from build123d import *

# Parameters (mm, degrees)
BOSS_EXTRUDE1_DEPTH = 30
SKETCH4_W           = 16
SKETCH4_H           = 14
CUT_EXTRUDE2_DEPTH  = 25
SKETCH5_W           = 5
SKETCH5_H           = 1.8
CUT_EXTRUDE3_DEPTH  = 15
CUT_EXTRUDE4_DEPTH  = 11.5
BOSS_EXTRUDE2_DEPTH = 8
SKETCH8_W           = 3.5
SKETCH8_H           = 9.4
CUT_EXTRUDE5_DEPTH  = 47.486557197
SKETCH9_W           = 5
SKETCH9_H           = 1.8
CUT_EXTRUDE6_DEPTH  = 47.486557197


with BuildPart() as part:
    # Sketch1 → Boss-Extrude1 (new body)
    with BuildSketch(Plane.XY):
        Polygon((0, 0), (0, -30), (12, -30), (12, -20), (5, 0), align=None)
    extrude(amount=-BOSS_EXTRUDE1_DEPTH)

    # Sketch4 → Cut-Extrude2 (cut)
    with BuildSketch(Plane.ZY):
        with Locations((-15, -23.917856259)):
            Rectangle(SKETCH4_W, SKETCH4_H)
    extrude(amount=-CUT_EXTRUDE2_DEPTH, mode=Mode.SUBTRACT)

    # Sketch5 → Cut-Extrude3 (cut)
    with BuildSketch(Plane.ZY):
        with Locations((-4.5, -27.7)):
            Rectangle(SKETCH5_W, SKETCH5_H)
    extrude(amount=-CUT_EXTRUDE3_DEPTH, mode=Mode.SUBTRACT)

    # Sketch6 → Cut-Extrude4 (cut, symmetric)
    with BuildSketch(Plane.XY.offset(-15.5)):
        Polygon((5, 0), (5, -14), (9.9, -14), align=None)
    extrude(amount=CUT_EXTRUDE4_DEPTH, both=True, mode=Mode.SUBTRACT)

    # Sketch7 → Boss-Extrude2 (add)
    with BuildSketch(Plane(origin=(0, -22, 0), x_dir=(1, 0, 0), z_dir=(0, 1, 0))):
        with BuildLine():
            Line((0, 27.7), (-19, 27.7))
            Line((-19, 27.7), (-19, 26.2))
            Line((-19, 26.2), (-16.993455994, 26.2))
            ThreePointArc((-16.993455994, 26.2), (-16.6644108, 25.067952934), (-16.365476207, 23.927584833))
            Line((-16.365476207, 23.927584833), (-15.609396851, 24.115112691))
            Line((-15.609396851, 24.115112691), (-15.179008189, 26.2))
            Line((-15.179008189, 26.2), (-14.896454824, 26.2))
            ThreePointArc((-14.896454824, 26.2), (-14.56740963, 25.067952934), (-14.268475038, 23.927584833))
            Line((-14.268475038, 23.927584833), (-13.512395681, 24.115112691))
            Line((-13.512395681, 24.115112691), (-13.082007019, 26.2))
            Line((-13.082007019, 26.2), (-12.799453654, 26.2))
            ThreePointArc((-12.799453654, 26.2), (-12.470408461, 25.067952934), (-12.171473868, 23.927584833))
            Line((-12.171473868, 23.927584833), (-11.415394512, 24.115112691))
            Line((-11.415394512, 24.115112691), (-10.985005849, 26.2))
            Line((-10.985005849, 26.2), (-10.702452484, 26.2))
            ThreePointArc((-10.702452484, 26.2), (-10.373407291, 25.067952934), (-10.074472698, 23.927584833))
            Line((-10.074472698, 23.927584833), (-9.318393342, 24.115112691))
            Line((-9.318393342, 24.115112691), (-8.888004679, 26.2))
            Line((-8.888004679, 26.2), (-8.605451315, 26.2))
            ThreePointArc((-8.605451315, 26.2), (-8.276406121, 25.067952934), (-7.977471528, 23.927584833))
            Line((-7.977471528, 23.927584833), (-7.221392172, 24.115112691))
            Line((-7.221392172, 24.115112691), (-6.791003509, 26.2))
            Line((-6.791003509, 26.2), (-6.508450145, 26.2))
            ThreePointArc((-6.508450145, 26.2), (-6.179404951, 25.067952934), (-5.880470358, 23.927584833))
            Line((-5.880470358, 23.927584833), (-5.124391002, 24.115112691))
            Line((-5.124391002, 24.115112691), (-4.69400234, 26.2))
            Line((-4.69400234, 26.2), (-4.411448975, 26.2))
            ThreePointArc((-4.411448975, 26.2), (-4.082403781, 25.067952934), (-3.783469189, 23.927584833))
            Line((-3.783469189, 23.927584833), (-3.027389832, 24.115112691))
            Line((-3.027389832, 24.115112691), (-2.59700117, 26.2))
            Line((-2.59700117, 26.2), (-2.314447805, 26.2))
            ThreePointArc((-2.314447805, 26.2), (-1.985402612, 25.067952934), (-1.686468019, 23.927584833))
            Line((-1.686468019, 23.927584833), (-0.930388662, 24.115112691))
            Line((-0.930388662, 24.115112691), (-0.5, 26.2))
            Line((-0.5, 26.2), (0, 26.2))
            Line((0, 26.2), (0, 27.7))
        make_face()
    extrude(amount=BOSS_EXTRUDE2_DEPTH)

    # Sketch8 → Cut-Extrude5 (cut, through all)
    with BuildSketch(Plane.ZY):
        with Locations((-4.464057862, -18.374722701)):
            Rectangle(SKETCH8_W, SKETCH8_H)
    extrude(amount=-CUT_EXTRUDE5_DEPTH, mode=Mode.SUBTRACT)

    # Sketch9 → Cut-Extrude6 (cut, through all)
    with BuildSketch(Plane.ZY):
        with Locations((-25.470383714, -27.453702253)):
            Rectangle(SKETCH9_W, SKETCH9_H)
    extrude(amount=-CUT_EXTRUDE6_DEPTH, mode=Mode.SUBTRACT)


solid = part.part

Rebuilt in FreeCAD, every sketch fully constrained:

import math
import FreeCAD as App
import Part
import Sketcher
from FreeCAD import Vector
Q = App.Units.Quantity

doc = App.newDocument("Part")
params = doc.addObject("Spreadsheet::Sheet", "Params")
for row, (alias, value) in enumerate([
    ("sketch1_width", "12 mm"),
    ("sketch1_width2", "5 mm"),
    ("sketch1_height", "30 mm"),
    ("sketch1_height2", "10 mm"),
    ("pad1_length", "30 mm"),
    ("sketch2_width", "14 mm"),
    ("sketch2_height", "16 mm"),
    ("pocket1_length", "25 mm"),
    ("sketch3_height", "5 mm"),
    ("sketch3_width", "1.8 mm"),
    ("pocket2_length", "15 mm"),
    ("sketch4_height", "14 mm"),
    ("sketch4_width", "4.9 mm"),
    ("pocket3_length", "23 mm"),
    ("sketch5_width", "19 mm"),
    ("sketch5_width2", "0.5 mm"),
    ("sketch5_height", "1.5 mm"),
    ("pad2_length", "8 mm"),
    ("sketch6_width", "9.4 mm"),
    ("sketch6_height", "3.5 mm"),
    ("sketch7_height", "5 mm"),
    ("sketch7_width", "1.8 mm"),
], start=1):
    params.set(f"A{row}", alias)
    params.set(f"B{row}", "=" + value)
    params.setAlias(f"B{row}", alias)

body = doc.addObject("PartDesign::Body", "Body")

sketch1 = body.newObject("Sketcher::SketchObject", "Sketch")
sketch1.AttachmentSupport = (doc.getObject("XY_Plane"), [""])
sketch1.MapMode = "FlatFace"
sketch1.addGeometry([
    Part.LineSegment(Vector(0, 0, 0), Vector(0, -30, 0)),
    Part.LineSegment(Vector(0, -30, 0), Vector(12, -30, 0)),
    Part.LineSegment(Vector(12, -30, 0), Vector(12, -20, 0)),
    Part.LineSegment(Vector(12, -20, 0), Vector(5, 0, 0)),
    Part.LineSegment(Vector(5, 0, 0), Vector(0, 0, 0)),
], False)
sketch1.addConstraint([
    Sketcher.Constraint("Coincident", 0, 2, 1, 1),
    Sketcher.Constraint("Coincident", 1, 2, 2, 1),
    Sketcher.Constraint("Coincident", 2, 2, 3, 1),
    Sketcher.Constraint("Coincident", 3, 2, 4, 1),
    Sketcher.Constraint("Coincident", 4, 2, 0, 1),
    Sketcher.Constraint("Vertical", 0),
    Sketcher.Constraint("Horizontal", 1),
    Sketcher.Constraint("Vertical", 2),
    Sketcher.Constraint("Horizontal", 4),
    Sketcher.Constraint("Coincident", 4, 2, -1, 1),
    Sketcher.Constraint("DistanceX", 1, 1, 1, 2, Q("12 mm")),
    Sketcher.Constraint("DistanceX", 4, 2, 4, 1, Q("5 mm")),
    Sketcher.Constraint("DistanceY", 0, 2, 0, 1, Q("30 mm")),
    Sketcher.Constraint("DistanceY", 2, 1, 2, 2, Q("10 mm")),
])
sketch1.setExpression("Constraints[10]", "Params.sketch1_width")
sketch1.setExpression("Constraints[11]", "Params.sketch1_width2")
sketch1.setExpression("Constraints[12]", "Params.sketch1_height")
sketch1.setExpression("Constraints[13]", "Params.sketch1_height2")
pad1 = body.newObject("PartDesign::Pad", "Pad")
pad1.Profile = sketch1
pad1.setExpression("Length", "Params.pad1_length")
pad1.Reversed = True

sketch2 = body.newObject("Sketcher::SketchObject", "Sketch001")
sketch2.AttachmentSupport = (doc.getObject("YZ_Plane"), [""])
sketch2.MapMode = "FlatFace"
sketch2.addGeometry([
    Part.LineSegment(Vector(-16.917856, -23, 0), Vector(-30.917856, -23, 0)),
    Part.LineSegment(Vector(-30.917856, -23, 0), Vector(-30.917856, -7, 0)),
    Part.LineSegment(Vector(-30.917856, -7, 0), Vector(-16.917856, -7, 0)),
    Part.LineSegment(Vector(-16.917856, -7, 0), Vector(-16.917856, -23, 0)),
], False)
sketch2.addConstraint([
    Sketcher.Constraint("Coincident", 0, 2, 1, 1),
    Sketcher.Constraint("Coincident", 1, 2, 2, 1),
    Sketcher.Constraint("Coincident", 2, 2, 3, 1),
    Sketcher.Constraint("Coincident", 3, 2, 0, 1),
    Sketcher.Constraint("Horizontal", 0),
    Sketcher.Constraint("Vertical", 1),
    Sketcher.Constraint("Horizontal", 2),
    Sketcher.Constraint("Vertical", 3),
    Sketcher.Constraint("DistanceX", 0, 2, 0, 1, Q("14 mm")),
    Sketcher.Constraint("DistanceY", 1, 1, 1, 2, Q("16 mm")),
    Sketcher.Constraint("DistanceY", 0, 2, -1, 1, Q("23 mm")),
    Sketcher.Constraint("DistanceX", 0, 2, -1, 1, Q("30.917856 mm")),
])
sketch2.setExpression("Constraints[8]", "Params.sketch2_width")
sketch2.setExpression("Constraints[9]", "Params.sketch2_height")
pocket1 = body.newObject("PartDesign::Pocket", "Pocket")
pocket1.Profile = sketch2
pocket1.setExpression("Length", "Params.pocket1_length")
pocket1.Reversed = True

sketch3 = body.newObject("Sketcher::SketchObject", "Sketch002")
sketch3.AttachmentSupport = (doc.getObject("YZ_Plane"), [""])
sketch3.MapMode = "FlatFace"
sketch3.addGeometry([
    Part.LineSegment(Vector(-26.8, -7, 0), Vector(-28.6, -7, 0)),
    Part.LineSegment(Vector(-28.6, -7, 0), Vector(-28.6, -2, 0)),
    Part.LineSegment(Vector(-28.6, -2, 0), Vector(-26.8, -2, 0)),
    Part.LineSegment(Vector(-26.8, -2, 0), Vector(-26.8, -7, 0)),
], False)
sketch3.addConstraint([
    Sketcher.Constraint("Coincident", 0, 2, 1, 1),
    Sketcher.Constraint("Coincident", 1, 2, 2, 1),
    Sketcher.Constraint("Coincident", 2, 2, 3, 1),
    Sketcher.Constraint("Coincident", 3, 2, 0, 1),
    Sketcher.Constraint("Horizontal", 0),
    Sketcher.Constraint("Vertical", 1),
    Sketcher.Constraint("Horizontal", 2),
    Sketcher.Constraint("Vertical", 3),
    Sketcher.Constraint("DistanceY", 1, 1, 1, 2, Q("5 mm")),
    Sketcher.Constraint("DistanceX", 0, 2, 0, 1, Q("1.8 mm")),
    Sketcher.Constraint("DistanceY", 0, 2, -1, 1, Q("7 mm")),
    Sketcher.Constraint("DistanceX", 0, 2, -1, 1, Q("28.6 mm")),
])
sketch3.setExpression("Constraints[8]", "Params.sketch3_height")
sketch3.setExpression("Constraints[9]", "Params.sketch3_width")
pocket2 = body.newObject("PartDesign::Pocket", "Pocket001")
pocket2.Profile = sketch3
pocket2.setExpression("Length", "Params.pocket2_length")
pocket2.Reversed = True

sketch4 = body.newObject("Sketcher::SketchObject", "Sketch003")
sketch4.AttachmentSupport = (doc.getObject("XY_Plane"), [""])
sketch4.MapMode = "FlatFace"
sketch4.AttachmentOffset = App.Placement(Vector(0, 0, -15.5), App.Rotation())
sketch4.addGeometry([
    Part.LineSegment(Vector(5, 0, 0), Vector(5, -14, 0)),
    Part.LineSegment(Vector(5, -14, 0), Vector(9.9, -14, 0)),
    Part.LineSegment(Vector(9.9, -14, 0), Vector(5, 0, 0)),
], False)
sketch4.addConstraint([
    Sketcher.Constraint("Coincident", 0, 2, 1, 1),
    Sketcher.Constraint("Coincident", 1, 2, 2, 1),
    Sketcher.Constraint("Coincident", 2, 2, 0, 1),
    Sketcher.Constraint("Vertical", 0),
    Sketcher.Constraint("Horizontal", 1),
    Sketcher.Constraint("PointOnObject", 2, 2, -1),
    Sketcher.Constraint("DistanceY", 0, 2, 0, 1, Q("14 mm")),
    Sketcher.Constraint("DistanceX", 1, 1, 1, 2, Q("4.9 mm")),
    Sketcher.Constraint("DistanceX", -1, 1, 0, 2, Q("5 mm")),
])
sketch4.setExpression("Constraints[6]", "Params.sketch4_height")
sketch4.setExpression("Constraints[7]", "Params.sketch4_width")
pocket3 = body.newObject("PartDesign::Pocket", "Pocket002")
pocket3.Profile = sketch4
pocket3.setExpression("Length", "Params.pocket3_length")
pocket3.Midplane = True

sketch5 = body.newObject("Sketcher::SketchObject", "Sketch004")
sketch5.AttachmentSupport = (doc.getObject("XZ_Plane"), [""])
sketch5.MapMode = "FlatFace"
sketch5.AttachmentOffset = App.Placement(Vector(0, 0, 22), App.Rotation())
sketch5.addGeometry([
    Part.LineSegment(Vector(0, -27.7, 0), Vector(-19, -27.7, 0)),
    Part.LineSegment(Vector(-19, -27.7, 0), Vector(-19, -26.2, 0)),
    Part.LineSegment(Vector(-19, -26.2, 0), Vector(-16.993456, -26.2, 0)),
    Part.ArcOfCircle(Part.Circle(Vector(-59.54613, -13.21763, 0), Vector(0, 0, 1), 44.48901), math.radians(-16.966392), math.radians(-13.929782)),
    Part.LineSegment(Vector(-16.365476, -23.927585, 0), Vector(-15.609397, -24.115113, 0)),
    Part.LineSegment(Vector(-15.609397, -24.115113, 0), Vector(-15.179008, -26.2, 0)),
    Part.LineSegment(Vector(-15.179008, -26.2, 0), Vector(-14.896455, -26.2, 0)),
    Part.ArcOfCircle(Part.Circle(Vector(-57.449128, -13.217631, 0), Vector(0, 0, 1), 44.489009), math.radians(-16.966392), math.radians(-13.929782)),
    Part.LineSegment(Vector(-14.268475, -23.927585, 0), Vector(-13.512396, -24.115113, 0)),
    Part.LineSegment(Vector(-13.512396, -24.115113, 0), Vector(-13.082007, -26.2, 0)),
    Part.LineSegment(Vector(-13.082007, -26.2, 0), Vector(-12.799454, -26.2, 0)),
    Part.ArcOfCircle(Part.Circle(Vector(-55.352129, -13.21763, 0), Vector(0, 0, 1), 44.489011), math.radians(-16.966392), math.radians(-13.929782)),
    Part.LineSegment(Vector(-12.171474, -23.927585, 0), Vector(-11.415395, -24.115113, 0)),
    Part.LineSegment(Vector(-11.415395, -24.115113, 0), Vector(-10.985006, -26.2, 0)),
    Part.LineSegment(Vector(-10.985006, -26.2, 0), Vector(-10.702452, -26.2, 0)),
    Part.ArcOfCircle(Part.Circle(Vector(-53.255128, -13.21763, 0), Vector(0, 0, 1), 44.489011), math.radians(-16.966392), math.radians(-13.929782)),
    Part.LineSegment(Vector(-10.074473, -23.927585, 0), Vector(-9.318393, -24.115113, 0)),
    Part.LineSegment(Vector(-9.318393, -24.115113, 0), Vector(-8.888005, -26.2, 0)),
    Part.LineSegment(Vector(-8.888005, -26.2, 0), Vector(-8.605451, -26.2, 0)),
    Part.ArcOfCircle(Part.Circle(Vector(-51.158126, -13.21763, 0), Vector(0, 0, 1), 44.48901), math.radians(-16.966392), math.radians(-13.929782)),
    Part.LineSegment(Vector(-7.977472, -23.927585, 0), Vector(-7.221392, -24.115113, 0)),
    Part.LineSegment(Vector(-7.221392, -24.115113, 0), Vector(-6.791004, -26.2, 0)),
    Part.LineSegment(Vector(-6.791004, -26.2, 0), Vector(-6.50845, -26.2, 0)),
    Part.ArcOfCircle(Part.Circle(Vector(-49.061125, -13.21763, 0), Vector(0, 0, 1), 44.48901), math.radians(-16.966392), math.radians(-13.929782)),
    Part.LineSegment(Vector(-5.88047, -23.927585, 0), Vector(-5.124391, -24.115113, 0)),
    Part.LineSegment(Vector(-5.124391, -24.115113, 0), Vector(-4.694002, -26.2, 0)),
    Part.LineSegment(Vector(-4.694002, -26.2, 0), Vector(-4.411449, -26.2, 0)),
    Part.ArcOfCircle(Part.Circle(Vector(-46.964122, -13.217631, 0), Vector(0, 0, 1), 44.489009), math.radians(-16.966392), math.radians(-13.929782)),
    Part.LineSegment(Vector(-3.783469, -23.927585, 0), Vector(-3.02739, -24.115113, 0)),
    Part.LineSegment(Vector(-3.02739, -24.115113, 0), Vector(-2.597001, -26.2, 0)),
    Part.LineSegment(Vector(-2.597001, -26.2, 0), Vector(-2.314448, -26.2, 0)),
    Part.ArcOfCircle(Part.Circle(Vector(-44.867123, -13.21763, 0), Vector(0, 0, 1), 44.489011), math.radians(-16.966392), math.radians(-13.929782)),
    Part.LineSegment(Vector(-1.686468, -23.927585, 0), Vector(-0.930389, -24.115113, 0)),
    Part.LineSegment(Vector(-0.930389, -24.115113, 0), Vector(-0.5, -26.2, 0)),
    Part.LineSegment(Vector(-0.5, -26.2, 0), Vector(0, -26.2, 0)),
    Part.LineSegment(Vector(0, -26.2, 0), Vector(0, -27.7, 0)),
], False)
sketch5.addConstraint([
    Sketcher.Constraint("Coincident", 0, 2, 1, 1),
    Sketcher.Constraint("Coincident", 1, 2, 2, 1),
    Sketcher.Constraint("Coincident", 2, 2, 3, 1),
    Sketcher.Constraint("Coincident", 3, 2, 4, 1),
    Sketcher.Constraint("Coincident", 4, 2, 5, 1),
    Sketcher.Constraint("Coincident", 5, 2, 6, 1),
    Sketcher.Constraint("Coincident", 6, 2, 7, 1),
    Sketcher.Constraint("Coincident", 7, 2, 8, 1),
    Sketcher.Constraint("Coincident", 8, 2, 9, 1),
    Sketcher.Constraint("Coincident", 9, 2, 10, 1),
    Sketcher.Constraint("Coincident", 10, 2, 11, 1),
    Sketcher.Constraint("Coincident", 11, 2, 12, 1),
    Sketcher.Constraint("Coincident", 12, 2, 13, 1),
    Sketcher.Constraint("Coincident", 13, 2, 14, 1),
    Sketcher.Constraint("Coincident", 14, 2, 15, 1),
    Sketcher.Constraint("Coincident", 15, 2, 16, 1),
    Sketcher.Constraint("Coincident", 16, 2, 17, 1),
    Sketcher.Constraint("Coincident", 17, 2, 18, 1),
    Sketcher.Constraint("Coincident", 18, 2, 19, 1),
    Sketcher.Constraint("Coincident", 19, 2, 20, 1),
    Sketcher.Constraint("Coincident", 20, 2, 21, 1),
    Sketcher.Constraint("Coincident", 21, 2, 22, 1),
    Sketcher.Constraint("Coincident", 22, 2, 23, 1),
    Sketcher.Constraint("Coincident", 23, 2, 24, 1),
    Sketcher.Constraint("Coincident", 24, 2, 25, 1),
    Sketcher.Constraint("Coincident", 25, 2, 26, 1),
    Sketcher.Constraint("Coincident", 26, 2, 27, 1),
    Sketcher.Constraint("Coincident", 27, 2, 28, 1),
    Sketcher.Constraint("Coincident", 28, 2, 29, 1),
    Sketcher.Constraint("Coincident", 29, 2, 30, 1),
    Sketcher.Constraint("Coincident", 30, 2, 31, 1),
    Sketcher.Constraint("Coincident", 31, 2, 32, 1),
    Sketcher.Constraint("Coincident", 32, 2, 33, 1),
    Sketcher.Constraint("Coincident", 33, 2, 34, 1),
    Sketcher.Constraint("Coincident", 34, 2, 35, 1),
    Sketcher.Constraint("Coincident", 35, 2, 0, 1),
    Sketcher.Constraint("Horizontal", 0),
    Sketcher.Constraint("Vertical", 1),
    Sketcher.Constraint("Horizontal", 2),
    Sketcher.Constraint("Horizontal", 6),
    Sketcher.Constraint("Horizontal", 10),
    Sketcher.Constraint("Horizontal", 14),
    Sketcher.Constraint("Horizontal", 18),
    Sketcher.Constraint("Horizontal", 22),
    Sketcher.Constraint("Horizontal", 26),
    Sketcher.Constraint("Horizontal", 30),
    Sketcher.Constraint("Horizontal", 34),
    Sketcher.Constraint("Vertical", 35),
    Sketcher.Constraint("Equal", 3, 7),
    Sketcher.Constraint("Equal", 3, 11),
    Sketcher.Constraint("Equal", 11, 15),
    Sketcher.Constraint("Equal", 15, 19),
    Sketcher.Constraint("Equal", 19, 23),
    Sketcher.Constraint("Equal", 23, 27),
    Sketcher.Constraint("Equal", 23, 31),
    Sketcher.Constraint("PointOnObject", 34, 2, -2),
    Sketcher.Constraint("Parallel", 4, 8),
    Sketcher.Constraint("Parallel", 5, 9),
    Sketcher.Constraint("Parallel", 8, 12),
    Sketcher.Constraint("Parallel", 9, 13),
    Sketcher.Constraint("Parallel", 12, 16),
    Sketcher.Constraint("Parallel", 13, 17),
    Sketcher.Constraint("Parallel", 16, 20),
    Sketcher.Constraint("Parallel", 17, 21),
    Sketcher.Constraint("Parallel", 20, 24),
    Sketcher.Constraint("Parallel", 21, 25),
    Sketcher.Constraint("Parallel", 24, 28),
    Sketcher.Constraint("Parallel", 25, 29),
    Sketcher.Constraint("Parallel", 28, 32),
    Sketcher.Constraint("Parallel", 29, 33),
    Sketcher.Constraint("Horizontal", 3, 3, 7, 3),
    Sketcher.Constraint("Horizontal", 7, 3, 11, 3),
    Sketcher.Constraint("Horizontal", 11, 3, 15, 3),
    Sketcher.Constraint("Horizontal", 15, 3, 19, 3),
    Sketcher.Constraint("Horizontal", 19, 3, 23, 3),
    Sketcher.Constraint("Horizontal", 23, 3, 27, 3),
    Sketcher.Constraint("Horizontal", 27, 3, 31, 3),
    Sketcher.Constraint("Horizontal", 2, 2, 5, 2),
    Sketcher.Constraint("Horizontal", 3, 2, 7, 2),
    Sketcher.Constraint("Horizontal", 4, 2, 8, 2),
    Sketcher.Constraint("Horizontal", 6, 2, 9, 2),
    Sketcher.Constraint("Horizontal", 7, 2, 11, 2),
    Sketcher.Constraint("Horizontal", 8, 2, 12, 2),
    Sketcher.Constraint("Horizontal", 10, 2, 13, 2),
    Sketcher.Constraint("Horizontal", 11, 2, 15, 2),
    Sketcher.Constraint("Horizontal", 12, 2, 16, 2),
    Sketcher.Constraint("Horizontal", 14, 2, 17, 2),
    Sketcher.Constraint("Horizontal", 15, 2, 19, 2),
    Sketcher.Constraint("Horizontal", 16, 2, 20, 2),
    Sketcher.Constraint("Horizontal", 18, 2, 21, 2),
    Sketcher.Constraint("Horizontal", 19, 2, 23, 2),
    Sketcher.Constraint("Horizontal", 20, 2, 24, 2),
    Sketcher.Constraint("Horizontal", 22, 2, 25, 2),
    Sketcher.Constraint("Horizontal", 23, 2, 27, 2),
    Sketcher.Constraint("Horizontal", 24, 2, 28, 2),
    Sketcher.Constraint("Horizontal", 26, 2, 29, 2),
    Sketcher.Constraint("Horizontal", 27, 2, 31, 2),
    Sketcher.Constraint("Horizontal", 28, 2, 32, 2),
    Sketcher.Constraint("Horizontal", 30, 2, 33, 2),
    Sketcher.Constraint("Equal", 6, 10),
    Sketcher.Constraint("Equal", 10, 14),
    Sketcher.Constraint("Equal", 14, 18),
    Sketcher.Constraint("Equal", 18, 22),
    Sketcher.Constraint("Equal", 22, 26),
    Sketcher.Constraint("Equal", 26, 30),
    Sketcher.Constraint("DistanceX", 0, 2, 0, 1, Q("19 mm")),
    Sketcher.Constraint("DistanceX", 34, 1, 34, 2, Q("0.5 mm")),
    Sketcher.Constraint("DistanceY", 1, 1, 1, 2, Q("1.5 mm")),
    Sketcher.Constraint("DistanceY", 0, 2, -1, 1, Q("27.7 mm")),
    Sketcher.Constraint("Radius", 3, Q("44.48901 mm")),
    Sketcher.Constraint("DistanceX", 29, 2, -1, 1, Q("2.597001 mm")),
    Sketcher.Constraint("Distance", 4, Q("0.778988 mm")),
    Sketcher.Constraint("DistanceX", 2, 1, 2, 2, Q("2.006544 mm")),
    Sketcher.Constraint("DistanceX", 3, 3, -1, 1, Q("59.54613 mm")),
    Sketcher.Constraint("DistanceX", 19, 2, -1, 1, Q("7.977472 mm")),
    Sketcher.Constraint("DistanceX", 24, 2, -1, 1, Q("5.124391 mm")),
])
sketch5.setExpression("Constraints[105]", "Params.sketch5_width")
sketch5.setExpression("Constraints[106]", "Params.sketch5_width2")
sketch5.setExpression("Constraints[107]", "Params.sketch5_height")
pad2 = body.newObject("PartDesign::Pad", "Pad001")
pad2.Profile = sketch5
pad2.setExpression("Length", "Params.pad2_length")
pad2.Reversed = True

sketch6 = body.newObject("Sketcher::SketchObject", "Sketch005")
sketch6.AttachmentSupport = (doc.getObject("YZ_Plane"), [""])
sketch6.MapMode = "FlatFace"
sketch6.addGeometry([
    Part.LineSegment(Vector(-13.674723, -6.214058, 0), Vector(-23.074723, -6.214058, 0)),
    Part.LineSegment(Vector(-23.074723, -6.214058, 0), Vector(-23.074723, -2.714058, 0)),
    Part.LineSegment(Vector(-23.074723, -2.714058, 0), Vector(-13.674723, -2.714058, 0)),
    Part.LineSegment(Vector(-13.674723, -2.714058, 0), Vector(-13.674723, -6.214058, 0)),
], False)
sketch6.addConstraint([
    Sketcher.Constraint("Coincident", 0, 2, 1, 1),
    Sketcher.Constraint("Coincident", 1, 2, 2, 1),
    Sketcher.Constraint("Coincident", 2, 2, 3, 1),
    Sketcher.Constraint("Coincident", 3, 2, 0, 1),
    Sketcher.Constraint("Horizontal", 0),
    Sketcher.Constraint("Vertical", 1),
    Sketcher.Constraint("Horizontal", 2),
    Sketcher.Constraint("Vertical", 3),
    Sketcher.Constraint("DistanceX", 0, 2, 0, 1, Q("9.4 mm")),
    Sketcher.Constraint("DistanceY", 1, 1, 1, 2, Q("3.5 mm")),
    Sketcher.Constraint("DistanceX", 0, 2, -1, 1, Q("23.074723 mm")),
    Sketcher.Constraint("DistanceY", 0, 2, -1, 1, Q("6.214058 mm")),
])
sketch6.setExpression("Constraints[8]", "Params.sketch6_width")
sketch6.setExpression("Constraints[9]", "Params.sketch6_height")
pocket4 = body.newObject("PartDesign::Pocket", "Pocket003")
pocket4.Profile = sketch6
pocket4.Type = "ThroughAll"
pocket4.Reversed = True

sketch7 = body.newObject("Sketcher::SketchObject", "Sketch006")
sketch7.AttachmentSupport = (doc.getObject("YZ_Plane"), [""])
sketch7.MapMode = "FlatFace"
sketch7.addGeometry([
    Part.LineSegment(Vector(-26.553702, -27.970384, 0), Vector(-28.353702, -27.970384, 0)),
    Part.LineSegment(Vector(-28.353702, -27.970384, 0), Vector(-28.353702, -22.970384, 0)),
    Part.LineSegment(Vector(-28.353702, -22.970384, 0), Vector(-26.553702, -22.970384, 0)),
    Part.LineSegment(Vector(-26.553702, -22.970384, 0), Vector(-26.553702, -27.970384, 0)),
], False)
sketch7.addConstraint([
    Sketcher.Constraint("Coincident", 0, 2, 1, 1),
    Sketcher.Constraint("Coincident", 1, 2, 2, 1),
    Sketcher.Constraint("Coincident", 2, 2, 3, 1),
    Sketcher.Constraint("Coincident", 3, 2, 0, 1),
    Sketcher.Constraint("Horizontal", 0),
    Sketcher.Constraint("Vertical", 1),
    Sketcher.Constraint("Horizontal", 2),
    Sketcher.Constraint("Vertical", 3),
    Sketcher.Constraint("DistanceY", 1, 1, 1, 2, Q("5 mm")),
    Sketcher.Constraint("DistanceX", 0, 2, 0, 1, Q("1.8 mm")),
    Sketcher.Constraint("DistanceX", 0, 2, -1, 1, Q("28.353702 mm")),
    Sketcher.Constraint("DistanceY", 0, 2, -1, 1, Q("27.970384 mm")),
])
sketch7.setExpression("Constraints[8]", "Params.sketch7_height")
sketch7.setExpression("Constraints[9]", "Params.sketch7_width")
pocket5 = body.newObject("PartDesign::Pocket", "Pocket004")
pocket5.Profile = sketch7
pocket5.Type = "ThroughAll"
pocket5.Reversed = True

doc.recompute()
